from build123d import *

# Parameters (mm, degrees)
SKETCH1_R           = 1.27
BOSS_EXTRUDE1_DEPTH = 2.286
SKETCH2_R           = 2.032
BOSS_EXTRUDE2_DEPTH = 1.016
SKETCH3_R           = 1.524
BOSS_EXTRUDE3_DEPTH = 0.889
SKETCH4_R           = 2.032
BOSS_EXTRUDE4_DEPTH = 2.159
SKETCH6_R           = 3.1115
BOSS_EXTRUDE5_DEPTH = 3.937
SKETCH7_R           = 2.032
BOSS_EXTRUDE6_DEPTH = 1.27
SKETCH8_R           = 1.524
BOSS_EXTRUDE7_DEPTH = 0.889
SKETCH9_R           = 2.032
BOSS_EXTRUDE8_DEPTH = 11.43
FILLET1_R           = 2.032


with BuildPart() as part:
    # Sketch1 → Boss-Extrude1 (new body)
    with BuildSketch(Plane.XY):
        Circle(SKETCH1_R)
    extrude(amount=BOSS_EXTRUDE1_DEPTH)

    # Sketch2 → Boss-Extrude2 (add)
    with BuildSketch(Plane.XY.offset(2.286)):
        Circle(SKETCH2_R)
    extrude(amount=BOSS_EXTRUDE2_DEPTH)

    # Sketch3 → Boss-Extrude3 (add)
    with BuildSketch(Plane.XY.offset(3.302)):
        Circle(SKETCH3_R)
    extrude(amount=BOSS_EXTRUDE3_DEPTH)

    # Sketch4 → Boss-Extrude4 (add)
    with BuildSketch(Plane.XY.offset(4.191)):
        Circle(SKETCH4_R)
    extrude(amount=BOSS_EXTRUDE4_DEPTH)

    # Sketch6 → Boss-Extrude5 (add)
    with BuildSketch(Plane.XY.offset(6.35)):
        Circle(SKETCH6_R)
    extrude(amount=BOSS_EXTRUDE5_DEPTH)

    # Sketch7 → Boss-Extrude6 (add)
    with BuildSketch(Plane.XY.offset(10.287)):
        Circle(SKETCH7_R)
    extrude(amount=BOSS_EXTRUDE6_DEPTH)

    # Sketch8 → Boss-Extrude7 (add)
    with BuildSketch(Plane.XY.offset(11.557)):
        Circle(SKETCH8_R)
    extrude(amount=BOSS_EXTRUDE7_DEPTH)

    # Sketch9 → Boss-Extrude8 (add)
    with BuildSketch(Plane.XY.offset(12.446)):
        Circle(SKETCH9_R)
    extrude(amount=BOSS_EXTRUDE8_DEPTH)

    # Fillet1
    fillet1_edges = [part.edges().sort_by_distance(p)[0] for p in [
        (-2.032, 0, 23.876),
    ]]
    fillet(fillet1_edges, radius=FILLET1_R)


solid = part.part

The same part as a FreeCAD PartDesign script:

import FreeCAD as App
import Part
import Sketcher

V = App.Vector
Q = App.Units.Quantity


def edges_at(feature, points):
    """Names of the edges that pass closest to the given points."""
    edges = feature.Shape.Edges
    near = lambda p: min(range(len(edges)), key=lambda i: edges[i].distToShape(Part.Vertex(*p))[0])
    return sorted({f"Edge{near(p) + 1}" for p in points})

doc = App.newDocument("Part")
body = doc.addObject("PartDesign::Body", "Body")

# Sketch on XY plane
sketch1 = body.newObject("Sketcher::SketchObject", "Sketch")
sketch1.AttachmentSupport = (doc.getObject("XY_Plane"), [""])
sketch1.MapMode = "FlatFace"
sketch1.addGeometry(Part.Circle(V(0, 0, 0), V(0, 0, 1), 1.3), False)
sketch1.addConstraint([
    Sketcher.Constraint("Coincident", 0, 3, -1, 1),
    Sketcher.Constraint("Diameter", 0, Q("0.1 in")),
])
pad1 = body.newObject("PartDesign::Pad", "Pad")
pad1.Profile = sketch1
pad1.Length = Q("0.09 in")

# Sketch on XY plane
sketch2 = body.newObject("Sketcher::SketchObject", "Sketch001")
sketch2.AttachmentSupport = (doc.getObject("XY_Plane"), [""])
sketch2.MapMode = "FlatFace"
sketch2.AttachmentOffset = App.Placement(V(0, 0, 0.09 * 25.4), App.Rotation())
sketch2.addGeometry(Part.Circle(V(0, 0, 0), V(0, 0, 1), 2), False)
sketch2.addConstraint([
    Sketcher.Constraint("Coincident", 0, 3, -1, 1),
    Sketcher.Constraint("Diameter", 0, Q("0.16 in")),
])
pad2 = body.newObject("PartDesign::Pad", "Pad001")
pad2.Profile = sketch2
pad2.Length = Q("0.04 in")

# Sketch on XY plane
sketch3 = body.newObject("Sketcher::SketchObject", "Sketch002")
sketch3.AttachmentSupport = (doc.getObject("XY_Plane"), [""])
sketch3.MapMode = "FlatFace"
sketch3.AttachmentOffset = App.Placement(V(0, 0, 0.13 * 25.4), App.Rotation())
sketch3.addGeometry(Part.Circle(V(0, 0, 0), V(0, 0, 1), 1.5), False)
sketch3.addConstraint([
    Sketcher.Constraint("Coincident", 0, 3, -1, 1),
    Sketcher.Constraint("Diameter", 0, Q("0.12 in")),
])
pad3 = body.newObject("PartDesign::Pad", "Pad002")
pad3.Profile = sketch3
pad3.Length = Q("0.035 in")

# Sketch on XY plane
sketch4 = body.newObject("Sketcher::SketchObject", "Sketch003")
sketch4.AttachmentSupport = (doc.getObject("XY_Plane"), [""])
sketch4.MapMode = "FlatFace"
sketch4.AttachmentOffset = App.Placement(V(0, 0, 0.165 * 25.4), App.Rotation())
sketch4.addGeometry(Part.Circle(V(0, 0, 0), V(0, 0, 1), 2), False)
sketch4.addConstraint([
    Sketcher.Constraint("Coincident", 0, 3, -1, 1),
    Sketcher.Constraint("Diameter", 0, Q("0.16 in")),
])
pad4 = body.newObject("PartDesign::Pad", "Pad003")
pad4.Profile = sketch4
pad4.Length = Q("0.085 in")

# Sketch on XY plane
sketch5 = body.newObject("Sketcher::SketchObject", "Sketch004")
sketch5.AttachmentSupport = (doc.getObject("XY_Plane"), [""])
sketch5.MapMode = "FlatFace"
sketch5.AttachmentOffset = App.Placement(V(0, 0, 0.25 * 25.4), App.Rotation())
sketch5.addGeometry(Part.Circle(V(0, 0, 0), V(0, 0, 1), 3.1), False)
sketch5.addConstraint([
    Sketcher.Constraint("Coincident", 0, 3, -1, 1),
    Sketcher.Constraint("Diameter", 0, Q("0.245 in")),
])
pad5 = body.newObject("PartDesign::Pad", "Pad004")
pad5.Profile = sketch5
pad5.Length = Q("0.155 in")

# Sketch on XY plane
sketch6 = body.newObject("Sketcher::SketchObject", "Sketch005")
sketch6.AttachmentSupport = (doc.getObject("XY_Plane"), [""])
sketch6.MapMode = "FlatFace"
sketch6.AttachmentOffset = App.Placement(V(0, 0, 0.405 * 25.4), App.Rotation())
sketch6.addGeometry(Part.Circle(V(0, 0, 0), V(0, 0, 1), 2), False)
sketch6.addConstraint([
    Sketcher.Constraint("Coincident", 0, 3, -1, 1),
    Sketcher.Constraint("Diameter", 0, Q("0.16 in")),
])
pad6 = body.newObject("PartDesign::Pad", "Pad005")
pad6.Profile = sketch6
pad6.Length = Q("0.05 in")

# Sketch on XY plane
sketch7 = body.newObject("Sketcher::SketchObject", "Sketch006")
sketch7.AttachmentSupport = (doc.getObject("XY_Plane"), [""])
sketch7.MapMode = "FlatFace"
sketch7.AttachmentOffset = App.Placement(V(0, 0, 0.455 * 25.4), App.Rotation())
sketch7.addGeometry(Part.Circle(V(0, 0, 0), V(0, 0, 1), 1.5), False)
sketch7.addConstraint([
    Sketcher.Constraint("Coincident", 0, 3, -1, 1),
    Sketcher.Constraint("Diameter", 0, Q("0.12 in")),
])
pad7 = body.newObject("PartDesign::Pad", "Pad006")
pad7.Profile = sketch7
pad7.Length = Q("0.035 in")

# Sketch on XY plane
sketch8 = body.newObject("Sketcher::SketchObject", "Sketch007")
sketch8.AttachmentSupport = (doc.getObject("XY_Plane"), [""])
sketch8.MapMode = "FlatFace"
sketch8.AttachmentOffset = App.Placement(V(0, 0, 0.49 * 25.4), App.Rotation())
sketch8.addGeometry(Part.Circle(V(0, 0, 0), V(0, 0, 1), 2), False)
sketch8.addConstraint([
    Sketcher.Constraint("Coincident", 0, 3, -1, 1),
    Sketcher.Constraint("Diameter", 0, Q("0.16 in")),
])
pad8 = body.newObject("PartDesign::Pad", "Pad007")
pad8.Profile = sketch8
pad8.Length = Q("0.45 in")
doc.recompute()

fillet = body.newObject("PartDesign::Fillet", "Fillet")
fillet.Base = (pad8, edges_at(pad8, [(-2.032, 0, 23.876)]))
fillet.Radius = Q("0.08 in")

doc.recompute()
